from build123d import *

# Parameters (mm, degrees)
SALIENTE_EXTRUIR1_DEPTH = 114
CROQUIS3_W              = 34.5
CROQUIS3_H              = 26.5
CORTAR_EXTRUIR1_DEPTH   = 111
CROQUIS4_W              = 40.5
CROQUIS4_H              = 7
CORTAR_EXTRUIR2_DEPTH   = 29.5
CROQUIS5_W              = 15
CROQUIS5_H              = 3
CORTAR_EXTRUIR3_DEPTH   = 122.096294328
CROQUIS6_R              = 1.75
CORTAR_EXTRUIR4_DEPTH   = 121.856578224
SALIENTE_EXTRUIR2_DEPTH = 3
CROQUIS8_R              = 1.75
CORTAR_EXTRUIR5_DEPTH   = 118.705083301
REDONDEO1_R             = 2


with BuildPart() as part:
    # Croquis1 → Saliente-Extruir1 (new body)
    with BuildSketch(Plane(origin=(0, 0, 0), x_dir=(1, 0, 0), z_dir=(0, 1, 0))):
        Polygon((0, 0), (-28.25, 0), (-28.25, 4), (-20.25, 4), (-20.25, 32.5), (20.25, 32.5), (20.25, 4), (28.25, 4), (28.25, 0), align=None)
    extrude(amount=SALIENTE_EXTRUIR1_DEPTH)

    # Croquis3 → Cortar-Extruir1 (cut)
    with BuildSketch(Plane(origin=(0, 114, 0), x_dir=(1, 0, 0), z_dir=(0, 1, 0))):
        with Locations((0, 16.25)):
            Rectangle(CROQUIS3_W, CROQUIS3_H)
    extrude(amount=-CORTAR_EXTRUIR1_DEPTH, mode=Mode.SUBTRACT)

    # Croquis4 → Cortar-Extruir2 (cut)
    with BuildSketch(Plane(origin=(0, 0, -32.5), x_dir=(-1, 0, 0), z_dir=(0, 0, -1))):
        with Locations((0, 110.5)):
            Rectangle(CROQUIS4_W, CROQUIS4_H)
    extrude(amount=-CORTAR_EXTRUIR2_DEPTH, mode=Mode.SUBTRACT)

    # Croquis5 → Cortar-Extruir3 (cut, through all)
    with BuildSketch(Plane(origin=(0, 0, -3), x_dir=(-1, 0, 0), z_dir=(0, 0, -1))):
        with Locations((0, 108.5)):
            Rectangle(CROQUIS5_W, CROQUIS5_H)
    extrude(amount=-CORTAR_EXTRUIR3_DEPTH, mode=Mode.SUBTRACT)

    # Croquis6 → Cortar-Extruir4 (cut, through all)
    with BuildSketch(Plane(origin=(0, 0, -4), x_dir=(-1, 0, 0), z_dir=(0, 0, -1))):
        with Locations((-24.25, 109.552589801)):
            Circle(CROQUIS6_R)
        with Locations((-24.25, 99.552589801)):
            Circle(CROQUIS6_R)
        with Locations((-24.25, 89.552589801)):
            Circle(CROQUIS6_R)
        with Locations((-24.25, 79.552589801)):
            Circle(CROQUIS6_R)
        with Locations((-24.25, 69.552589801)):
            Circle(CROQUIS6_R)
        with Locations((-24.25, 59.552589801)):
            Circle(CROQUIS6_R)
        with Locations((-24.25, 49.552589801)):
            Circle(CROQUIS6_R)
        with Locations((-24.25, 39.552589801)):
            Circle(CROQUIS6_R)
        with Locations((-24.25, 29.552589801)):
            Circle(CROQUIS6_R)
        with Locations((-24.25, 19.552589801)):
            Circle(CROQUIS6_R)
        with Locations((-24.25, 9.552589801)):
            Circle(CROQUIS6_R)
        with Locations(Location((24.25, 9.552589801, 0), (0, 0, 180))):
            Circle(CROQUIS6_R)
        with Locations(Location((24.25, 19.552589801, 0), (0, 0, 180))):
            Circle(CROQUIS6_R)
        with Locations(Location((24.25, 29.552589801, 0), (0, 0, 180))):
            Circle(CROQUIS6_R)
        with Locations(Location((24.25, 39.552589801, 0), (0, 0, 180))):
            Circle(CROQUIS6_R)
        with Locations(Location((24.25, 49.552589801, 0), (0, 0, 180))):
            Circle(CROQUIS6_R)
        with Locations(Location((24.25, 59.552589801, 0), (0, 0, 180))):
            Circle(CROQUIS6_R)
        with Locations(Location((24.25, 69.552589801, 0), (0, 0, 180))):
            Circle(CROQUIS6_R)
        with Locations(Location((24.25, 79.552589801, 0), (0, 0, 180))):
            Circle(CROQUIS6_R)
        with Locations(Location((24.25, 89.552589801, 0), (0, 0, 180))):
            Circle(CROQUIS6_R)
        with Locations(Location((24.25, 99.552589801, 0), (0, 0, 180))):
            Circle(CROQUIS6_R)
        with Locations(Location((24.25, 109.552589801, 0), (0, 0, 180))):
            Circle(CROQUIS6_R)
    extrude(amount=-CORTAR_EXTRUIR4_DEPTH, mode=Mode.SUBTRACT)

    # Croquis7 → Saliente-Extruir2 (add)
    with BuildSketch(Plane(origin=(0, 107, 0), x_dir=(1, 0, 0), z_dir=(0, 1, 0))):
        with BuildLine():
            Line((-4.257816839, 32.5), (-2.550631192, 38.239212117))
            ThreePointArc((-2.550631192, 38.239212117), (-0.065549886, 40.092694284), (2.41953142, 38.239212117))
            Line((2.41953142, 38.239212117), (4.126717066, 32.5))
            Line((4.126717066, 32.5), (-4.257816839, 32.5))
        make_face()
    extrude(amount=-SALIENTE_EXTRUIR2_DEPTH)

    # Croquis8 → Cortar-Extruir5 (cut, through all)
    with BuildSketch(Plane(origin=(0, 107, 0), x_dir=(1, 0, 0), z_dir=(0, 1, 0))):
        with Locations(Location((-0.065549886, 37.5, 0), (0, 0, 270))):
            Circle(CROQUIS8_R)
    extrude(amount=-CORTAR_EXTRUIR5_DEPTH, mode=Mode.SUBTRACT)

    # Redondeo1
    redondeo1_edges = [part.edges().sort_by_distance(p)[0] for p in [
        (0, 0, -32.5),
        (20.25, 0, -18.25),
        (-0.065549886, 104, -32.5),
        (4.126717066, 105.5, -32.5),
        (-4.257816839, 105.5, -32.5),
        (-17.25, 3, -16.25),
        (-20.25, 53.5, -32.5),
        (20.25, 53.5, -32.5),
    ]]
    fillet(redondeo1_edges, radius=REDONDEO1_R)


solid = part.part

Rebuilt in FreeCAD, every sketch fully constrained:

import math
import FreeCAD as App
import Part
import Sketcher
from FreeCAD import Vector
Q = App.Units.Quantity


def edges_at(feature, points):
    """Names of the edges that pass closest to the given points."""
    edges = feature.Shape.Edges
    near = lambda p: min(range(len(edges)), key=lambda i: edges[i].distToShape(Part.Vertex(*p))[0])
    return sorted({f"Edge{near(p) + 1}" for p in points})

doc = App.newDocument("Part")
body = doc.addObject("PartDesign::Body", "Body")

# Sketch on XZ plane
sketch1 = body.newObject("Sketcher::SketchObject", "Sketch")
sketch1.AttachmentSupport = (doc.getObject("XZ_Plane"), [""])
sketch1.MapMode = "FlatFace"
sketch1.addGeometry([
    Part.LineSegment(Vector(-28.2, 0, 0), Vector(28.2, 0, 0)),  # 0
    Part.LineSegment(Vector(28.2, 0, 0), Vector(28.2, -4, 0)),  # 1
    Part.LineSegment(Vector(28.2, -4, 0), Vector(20.2, -4, 0)),  # 2
    Part.LineSegment(Vector(20.2, -4, 0), Vector(20.2, -32.5, 0)),  # 3
    Part.LineSegment(Vector(20.2, -32.5, 0), Vector(-20.2, -32.5, 0)),  # 4
    Part.LineSegment(Vector(-20.2, -32.5, 0), Vector(-20.2, -4, 0)),  # 5
    Part.LineSegment(Vector(-20.2, -4, 0), Vector(-28.2, -4, 0)),  # 6
    Part.LineSegment(Vector(-28.2, -4, 0), Vector(-28.2, 0, 0)),  # 7
], False)
sketch1.addConstraint([
    Sketcher.Constraint("Coincident", 0, 2, 1, 1),
    Sketcher.Constraint("Coincident", 1, 2, 2, 1),
    Sketcher.Constraint("Coincident", 2, 2, 3, 1),
    Sketcher.Constraint("Coincident", 3, 2, 4, 1),
    Sketcher.Constraint("Coincident", 4, 2, 5, 1),
    Sketcher.Constraint("Coincident", 5, 2, 6, 1),
    Sketcher.Constraint("Coincident", 6, 2, 7, 1),
    Sketcher.Constraint("Coincident", 7, 2, 0, 1),
    Sketcher.Constraint("Horizontal", 0),
    Sketcher.Constraint("Vertical", 1),
    Sketcher.Constraint("Horizontal", 2),
    Sketcher.Constraint("Vertical", 3),
    Sketcher.Constraint("Horizontal", 4),
    Sketcher.Constraint("Vertical", 5),
    Sketcher.Constraint("Horizontal", 6),
    Sketcher.Constraint("Vertical", 7),
    Sketcher.Constraint("Symmetric", 0, 2, 7, 2, -1, 1),
    Sketcher.Constraint("Symmetric", 2, 2, 5, 2, -2),
    Sketcher.Constraint("DistanceX", 2, 2, 2, 1, Q("8 mm")),
    Sketcher.Constraint("DistanceY", 1, 2, 1, 1, Q("4 mm")),
    Sketcher.Constraint("DistanceX", 0, 1, 0, 2, Q("56.5 mm")),
    Sketcher.Constraint("DistanceY", 3, 2, 3, 1, Q("28.5 mm")),
])
pad1 = body.newObject("PartDesign::Pad", "Pad")
pad1.Profile = sketch1
pad1.Length = 114
pad1.Reversed = True

# Sketch on XZ plane
sketch2 = body.newObject("Sketcher::SketchObject", "Sketch001")
sketch2.AttachmentSupport = (doc.getObject("XZ_Plane"), [""])
sketch2.MapMode = "FlatFace"
sketch2.AttachmentOffset = App.Placement(Vector(0, 0, -114), App.Rotation())
sketch2.addGeometry([
    Part.LineSegment(Vector(-17, -30, 0), Vector(-17, -3, 0)),
    Part.LineSegment(Vector(-17, -3, 0), Vector(17, -3, 0)),
    Part.LineSegment(Vector(17, -3, 0), Vector(17, -30, 0)),
    Part.LineSegment(Vector(17, -30, 0), Vector(-17, -30, 0)),
], False)
sketch2.addConstraint([
    Sketcher.Constraint("Coincident", 0, 2, 1, 1),
    Sketcher.Constraint("Coincident", 1, 2, 2, 1),
    Sketcher.Constraint("Coincident", 2, 2, 3, 1),
    Sketcher.Constraint("Coincident", 3, 2, 0, 1),
    Sketcher.Constraint("Vertical", 0),
    Sketcher.Constraint("Horizontal", 1),
    Sketcher.Constraint("Vertical", 2),
    Sketcher.Constraint("Horizontal", 3),
    Sketcher.Constraint("DistanceX", 1, 1, 1, 2, Q("34.5 mm")),
    Sketcher.Constraint("DistanceY", 0, 1, 0, 2, Q("26.5 mm")),
    Sketcher.Constraint("DistanceY", 0, 2, -1, 1, Q("3 mm")),
    Sketcher.Constraint("DistanceX", 0, 2, -1, 1, Q("17.25 mm")),
])
pocket1 = body.newObject("PartDesign::Pocket", "Pocket")
pocket1.Profile = sketch2
pocket1.Length = 111
pocket1.Reversed = True

# Sketch on XY plane
sketch3 = body.newObject("Sketcher::SketchObject", "Sketch002")
sketch3.AttachmentSupport = (doc.getObject("XY_Plane"), [""])
sketch3.MapMode = "FlatFace"
sketch3.AttachmentOffset = App.Placement(Vector(0, 0, -32.5), App.Rotation())
sketch3.addGeometry([
    Part.LineSegment(Vector(20, 114, 0), Vector(20, 107, 0)),
    Part.LineSegment(Vector(20, 107, 0), Vector(-20, 107, 0)),
    Part.LineSegment(Vector(-20, 107, 0), Vector(-20, 114, 0)),
    Part.LineSegment(Vector(-20, 114, 0), Vector(20, 114, 0)),
], False)
sketch3.addConstraint([
    Sketcher.Constraint("Coincident", 0, 2, 1, 1),
    Sketcher.Constraint("Coincident", 1, 2, 2, 1),
    Sketcher.Constraint("Coincident", 2, 2, 3, 1),
    Sketcher.Constraint("Coincident", 3, 2, 0, 1),
    Sketcher.Constraint("Vertical", 0),
    Sketcher.Constraint("Horizontal", 1),
    Sketcher.Constraint("Vertical", 2),
    Sketcher.Constraint("Horizontal", 3),
    Sketcher.Constraint("DistanceY", 0, 2, 0, 1, Q("7 mm")),
    Sketcher.Constraint("DistanceX", 1, 2, 1, 1, Q("40.5 mm")),
    Sketcher.Constraint("DistanceY", -1, 1, 0, 2, Q("107 mm")),
    Sketcher.Constraint("DistanceX", -1, 1, 0, 2, Q("20.25 mm")),
])
pocket2 = body.newObject("PartDesign::Pocket", "Pocket001")
pocket2.Profile = sketch3
pocket2.Length = 29.5
pocket2.Reversed = True

# Sketch on XY plane
sketch4 = body.newObject("Sketcher::SketchObject", "Sketch003")
sketch4.AttachmentSupport = (doc.getObject("XY_Plane"), [""])
sketch4.MapMode = "FlatFace"
sketch4.AttachmentOffset = App.Placement(Vector(0, 0, -3), App.Rotation())
sketch4.addGeometry([
    Part.LineSegment(Vector(7.5, 110, 0), Vector(7.5, 107, 0)),
    Part.LineSegment(Vector(7.5, 107, 0), Vector(-7.5, 107, 0)),
    Part.LineSegment(Vector(-7.5, 107, 0), Vector(-7.5, 110, 0)),
    Part.LineSegment(Vector(-7.5, 110, 0), Vector(7.5, 110, 0)),
], False)
sketch4.addConstraint([
    Sketcher.Constraint("Coincident", 0, 2, 1, 1),
    Sketcher.Constraint("Coincident", 1, 2, 2, 1),
    Sketcher.Constraint("Coincident", 2, 2, 3, 1),
    Sketcher.Constraint("Coincident", 3, 2, 0, 1),
    Sketcher.Constraint("Vertical", 0),
    Sketcher.Constraint("Horizontal", 1),
    Sketcher.Constraint("Vertical", 2),
    Sketcher.Constraint("Horizontal", 3),
    Sketcher.Constraint("DistanceX", 1, 2, 1, 1, Q("15 mm")),
    Sketcher.Constraint("DistanceY", 0, 2, 0, 1, Q("3 mm")),
    Sketcher.Constraint("DistanceY", -1, 1, 0, 2, Q("107 mm")),
    Sketcher.Constraint("DistanceX", -1, 1, 0, 2, Q("7.5 mm")),
])
pocket3 = body.newObject("PartDesign::Pocket", "Pocket002")
pocket3.Profile = sketch4
pocket3.Type = "ThroughAll"
pocket3.Reversed = True

# Sketch on XY plane
sketch5 = body.newObject("Sketcher::SketchObject", "Sketch004")
sketch5.AttachmentSupport = (doc.getObject("XY_Plane"), [""])
sketch5.MapMode = "FlatFace"
sketch5.AttachmentOffset = App.Placement(Vector(0, 0, -4), App.Rotation())
sketch5.addGeometry([
    Part.Circle(Vector(24.2, 109.6, 0), Vector(0, 0, 1), 1.8),  # 0
    Part.Circle(Vector(24.2, 99.6, 0), Vector(0, 0, 1), 1.8),  # 1
    Part.Circle(Vector(24.2, 89.6, 0), Vector(0, 0, 1), 1.8),  # 2
    Part.Circle(Vector(24.2, 79.6, 0), Vector(0, 0, 1), 1.8),  # 3
    Part.Circle(Vector(24.2, 69.6, 0), Vector(0, 0, 1), 1.8),  # 4
    Part.Circle(Vector(24.2, 59.6, 0), Vector(0, 0, 1), 1.8),  # 5
    Part.Circle(Vector(24.2, 49.6, 0), Vector(0, 0, 1), 1.8),  # 6
    Part.Circle(Vector(24.2, 39.6, 0), Vector(0, 0, 1), 1.8),  # 7
    Part.Circle(Vector(24.2, 29.6, 0), Vector(0, 0, 1), 1.8),  # 8
    Part.Circle(Vector(24.2, 19.6, 0), Vector(0, 0, 1), 1.8),  # 9
    Part.Circle(Vector(24.2, 9.6, 0), Vector(0, 0, 1), 1.8),  # 10
    Part.Circle(Vector(-24.2, 9.6, 0), Vector(0, 0, 1), 1.8),  # 11
    Part.Circle(Vector(-24.2, 19.6, 0), Vector(0, 0, 1), 1.8),  # 12
    Part.Circle(Vector(-24.2, 29.6, 0), Vector(0, 0, 1), 1.8),  # 13
    Part.Circle(Vector(-24.2, 39.6, 0), Vector(0, 0, 1), 1.8),  # 14
    Part.Circle(Vector(-24.2, 49.6, 0), Vector(0, 0, 1), 1.8),  # 15
    Part.Circle(Vector(-24.2, 59.6, 0), Vector(0, 0, 1), 1.8),  # 16
    Part.Circle(Vector(-24.2, 69.6, 0), Vector(0, 0, 1), 1.8),  # 17
    Part.Circle(Vector(-24.2, 79.6, 0), Vector(0, 0, 1), 1.8),  # 18
    Part.Circle(Vector(-24.2, 89.6, 0), Vector(0, 0, 1), 1.8),  # 19
    Part.Circle(Vector(-24.2, 99.6, 0), Vector(0, 0, 1), 1.8),  # 20
    Part.Circle(Vector(-24.2, 109.6, 0), Vector(0, 0, 1), 1.8),  # 21
], False)
sketch5.addConstraint([
    Sketcher.Constraint("Equal", 0, 1),
    Sketcher.Constraint("Equal", 1, 2),
    Sketcher.Constraint("Equal", 2, 3),
    Sketcher.Constraint("Equal", 3, 4),
    Sketcher.Constraint("Equal", 4, 5),
    Sketcher.Constraint("Equal", 5, 6),
    Sketcher.Constraint("Equal", 6, 7),
    Sketcher.Constraint("Equal", 7, 8),
    Sketcher.Constraint("Equal", 8, 9),
    Sketcher.Constraint("Equal", 9, 10),
    Sketcher.Constraint("Equal", 10, 11),
    Sketcher.Constraint("Equal", 11, 12),
    Sketcher.Constraint("Equal", 12, 13),
    Sketcher.Constraint("Equal", 13, 14),
    Sketcher.Constraint("Equal", 14, 15),
    Sketcher.Constraint("Equal", 15, 16),
    Sketcher.Constraint("Equal", 16, 17),
    Sketcher.Constraint("Equal", 17, 18),
    Sketcher.Constraint("Equal", 18, 19),
    Sketcher.Constraint("Equal", 19, 20),
    Sketcher.Constraint("Equal", 20, 21),
    Sketcher.Constraint("Symmetric", 10, 3, 11, 3, -2),
    Sketcher.Constraint("Symmetric", 9, 3, 12, 3, -2),
    Sketcher.Constraint("Symmetric", 8, 3, 13, 3, -2),
    Sketcher.Constraint("Symmetric", 7, 3, 14, 3, -2),
    Sketcher.Constraint("Symmetric", 6, 3, 15, 3, -2),
    Sketcher.Constraint("Symmetric", 5, 3, 16, 3, -2),
    Sketcher.Constraint("Symmetric", 4, 3, 17, 3, -2),
    Sketcher.Constraint("Symmetric", 3, 3, 18, 3, -2),
    Sketcher.Constraint("Symmetric", 2, 3, 19, 3, -2),
    Sketcher.Constraint("Symmetric", 1, 3, 20, 3, -2),
    Sketcher.Constraint("Symmetric", 0, 3, 21, 3, -2),
    Sketcher.Constraint("Vertical", 0, 3, 1, 3),
    Sketcher.Constraint("Vertical", 1, 3, 2, 3),
    Sketcher.Constraint("Vertical", 2, 3, 3, 3),
    Sketcher.Constraint("Vertical", 3, 3, 4, 3),
    Sketcher.Constraint("Vertical", 4, 3, 5, 3),
    Sketcher.Constraint("Vertical", 5, 3, 6, 3),
    Sketcher.Constraint("Vertical", 6, 3, 7, 3),
    Sketcher.Constraint("Vertical", 7, 3, 8, 3),
    Sketcher.Constraint("Vertical", 8, 3, 9, 3),
    Sketcher.Constraint("Vertical", 9, 3, 10, 3),
    Sketcher.Constraint("Diameter", 0, Q("3.5 mm")),
    Sketcher.Constraint("DistanceY", 1, 3, 0, 3, Q("10 mm")),
    Sketcher.Constraint("DistanceY", 2, 3, 1, 3, Q("10 mm")),
    Sketcher.Constraint("DistanceY", 3, 3, 2, 3, Q("10 mm")),
    Sketcher.Constraint("DistanceY", 4, 3, 3, 3, Q("10 mm")),
    Sketcher.Constraint("DistanceY", 5, 3, 4, 3, Q("10 mm")),
    Sketcher.Constraint("DistanceY", 6, 3, 5, 3, Q("10 mm")),
    Sketcher.Constraint("DistanceY", 7, 3, 6, 3, Q("10 mm")),
    Sketcher.Constraint("DistanceY", 8, 3, 7, 3, Q("10 mm")),
    Sketcher.Constraint("DistanceY", 9, 3, 8, 3, Q("10 mm")),
    Sketcher.Constraint("DistanceY", 10, 3, 9, 3, Q("10 mm")),
    Sketcher.Constraint("DistanceX", 11, 3, 10, 3, Q("48.5 mm")),
    Sketcher.Constraint("DistanceY", -1, 1, 0, 3, Q("109.55259 mm")),
])
pocket4 = body.newObject("PartDesign::Pocket", "Pocket003")
pocket4.Profile = sketch5
pocket4.Type = "ThroughAll"
pocket4.Reversed = True

# Sketch on XZ plane
sketch6 = body.newObject("Sketcher::SketchObject", "Sketch005")
sketch6.AttachmentSupport = (doc.getObject("XZ_Plane"), [""])
sketch6.MapMode = "FlatFace"
sketch6.AttachmentOffset = App.Placement(Vector(0, 0, -107), App.Rotation())
sketch6.addGeometry([
    Part.LineSegment(Vector(-2.6, -38.2, 0), Vector(-4.3, -32.5, 0)),
    Part.LineSegment(Vector(-4.3, -32.5, 0), Vector(4.1, -32.5, 0)),
    Part.LineSegment(Vector(4.1, -32.5, 0), Vector(2.4, -38.2, 0)),
    Part.ArcOfCircle(Part.Circle(Vector(-0.1, -37.5, 0), Vector(0, 0, 1), 2.6), math.radians(-163), math.radians(-17)),
], False)
sketch6.addConstraint([
    Sketcher.Constraint("Coincident", 0, 2, 1, 1),
    Sketcher.Constraint("Coincident", 1, 2, 2, 1),
    Sketcher.Constraint("Tangent", 2, 2, 3, 2),
    Sketcher.Constraint("Tangent", 3, 1, 0, 1),
    Sketcher.Constraint("Horizontal", 1),
    Sketcher.Constraint("Horizontal", 2, 2, 3, 1),
    Sketcher.Constraint("DistanceY", 3, 3, 0, 2, Q("5 mm")),
    Sketcher.Constraint("DistanceY", 3, 3, -1, 1, Q("37.5 mm")),
    Sketcher.Constraint("Radius", 3, Q("2.592694 mm")),
    Sketcher.Constraint("Distance", 0, Q("5.987741 mm")),
    Sketcher.Constraint("DistanceX", 3, 3, -1, 1, Q("0.06555 mm")),
])
pad2 = body.newObject("PartDesign::Pad", "Pad001")
pad2.Profile = sketch6
pad2.Length = 3

# Sketch on XZ plane
sketch7 = body.newObject("Sketcher::SketchObject", "Sketch006")
sketch7.AttachmentSupport = (doc.getObject("XZ_Plane"), [""])
sketch7.MapMode = "FlatFace"
sketch7.AttachmentOffset = App.Placement(Vector(0, 0, -107), App.Rotation())
sketch7.addGeometry(Part.Circle(Vector(-0.1, -37.5, 0), Vector(0, 0, 1), 1.8), False)
sketch7.addConstraint([
    Sketcher.Constraint("Diameter", 0, Q("3.5 mm")),
    Sketcher.Constraint("DistanceY", 0, 3, -1, 1, Q("37.5 mm")),
    Sketcher.Constraint("DistanceX", 0, 3, -1, 1, Q("0.06555 mm")),
])
pocket5 = body.newObject("PartDesign::Pocket", "Pocket004")
pocket5.Profile = sketch7
pocket5.Type = "ThroughAll"
pocket5.Reversed = True
doc.recompute()

fillet = body.newObject("PartDesign::Fillet", "Fillet")
fillet.Base = (pocket5, edges_at(pocket5, [
    (0, 0, -32.5),
    (20.25, 0, -18.25),
    (-0.066, 104, -32.5),
    (4.127, 105.5, -32.5),
    (-4.258, 105.5, -32.5),
    (-17.25, 3, -16.25),
    (-20.25, 53.5, -32.5),
    (20.25, 53.5, -32.5),
]))
fillet.Radius = 2

doc.recompute()
